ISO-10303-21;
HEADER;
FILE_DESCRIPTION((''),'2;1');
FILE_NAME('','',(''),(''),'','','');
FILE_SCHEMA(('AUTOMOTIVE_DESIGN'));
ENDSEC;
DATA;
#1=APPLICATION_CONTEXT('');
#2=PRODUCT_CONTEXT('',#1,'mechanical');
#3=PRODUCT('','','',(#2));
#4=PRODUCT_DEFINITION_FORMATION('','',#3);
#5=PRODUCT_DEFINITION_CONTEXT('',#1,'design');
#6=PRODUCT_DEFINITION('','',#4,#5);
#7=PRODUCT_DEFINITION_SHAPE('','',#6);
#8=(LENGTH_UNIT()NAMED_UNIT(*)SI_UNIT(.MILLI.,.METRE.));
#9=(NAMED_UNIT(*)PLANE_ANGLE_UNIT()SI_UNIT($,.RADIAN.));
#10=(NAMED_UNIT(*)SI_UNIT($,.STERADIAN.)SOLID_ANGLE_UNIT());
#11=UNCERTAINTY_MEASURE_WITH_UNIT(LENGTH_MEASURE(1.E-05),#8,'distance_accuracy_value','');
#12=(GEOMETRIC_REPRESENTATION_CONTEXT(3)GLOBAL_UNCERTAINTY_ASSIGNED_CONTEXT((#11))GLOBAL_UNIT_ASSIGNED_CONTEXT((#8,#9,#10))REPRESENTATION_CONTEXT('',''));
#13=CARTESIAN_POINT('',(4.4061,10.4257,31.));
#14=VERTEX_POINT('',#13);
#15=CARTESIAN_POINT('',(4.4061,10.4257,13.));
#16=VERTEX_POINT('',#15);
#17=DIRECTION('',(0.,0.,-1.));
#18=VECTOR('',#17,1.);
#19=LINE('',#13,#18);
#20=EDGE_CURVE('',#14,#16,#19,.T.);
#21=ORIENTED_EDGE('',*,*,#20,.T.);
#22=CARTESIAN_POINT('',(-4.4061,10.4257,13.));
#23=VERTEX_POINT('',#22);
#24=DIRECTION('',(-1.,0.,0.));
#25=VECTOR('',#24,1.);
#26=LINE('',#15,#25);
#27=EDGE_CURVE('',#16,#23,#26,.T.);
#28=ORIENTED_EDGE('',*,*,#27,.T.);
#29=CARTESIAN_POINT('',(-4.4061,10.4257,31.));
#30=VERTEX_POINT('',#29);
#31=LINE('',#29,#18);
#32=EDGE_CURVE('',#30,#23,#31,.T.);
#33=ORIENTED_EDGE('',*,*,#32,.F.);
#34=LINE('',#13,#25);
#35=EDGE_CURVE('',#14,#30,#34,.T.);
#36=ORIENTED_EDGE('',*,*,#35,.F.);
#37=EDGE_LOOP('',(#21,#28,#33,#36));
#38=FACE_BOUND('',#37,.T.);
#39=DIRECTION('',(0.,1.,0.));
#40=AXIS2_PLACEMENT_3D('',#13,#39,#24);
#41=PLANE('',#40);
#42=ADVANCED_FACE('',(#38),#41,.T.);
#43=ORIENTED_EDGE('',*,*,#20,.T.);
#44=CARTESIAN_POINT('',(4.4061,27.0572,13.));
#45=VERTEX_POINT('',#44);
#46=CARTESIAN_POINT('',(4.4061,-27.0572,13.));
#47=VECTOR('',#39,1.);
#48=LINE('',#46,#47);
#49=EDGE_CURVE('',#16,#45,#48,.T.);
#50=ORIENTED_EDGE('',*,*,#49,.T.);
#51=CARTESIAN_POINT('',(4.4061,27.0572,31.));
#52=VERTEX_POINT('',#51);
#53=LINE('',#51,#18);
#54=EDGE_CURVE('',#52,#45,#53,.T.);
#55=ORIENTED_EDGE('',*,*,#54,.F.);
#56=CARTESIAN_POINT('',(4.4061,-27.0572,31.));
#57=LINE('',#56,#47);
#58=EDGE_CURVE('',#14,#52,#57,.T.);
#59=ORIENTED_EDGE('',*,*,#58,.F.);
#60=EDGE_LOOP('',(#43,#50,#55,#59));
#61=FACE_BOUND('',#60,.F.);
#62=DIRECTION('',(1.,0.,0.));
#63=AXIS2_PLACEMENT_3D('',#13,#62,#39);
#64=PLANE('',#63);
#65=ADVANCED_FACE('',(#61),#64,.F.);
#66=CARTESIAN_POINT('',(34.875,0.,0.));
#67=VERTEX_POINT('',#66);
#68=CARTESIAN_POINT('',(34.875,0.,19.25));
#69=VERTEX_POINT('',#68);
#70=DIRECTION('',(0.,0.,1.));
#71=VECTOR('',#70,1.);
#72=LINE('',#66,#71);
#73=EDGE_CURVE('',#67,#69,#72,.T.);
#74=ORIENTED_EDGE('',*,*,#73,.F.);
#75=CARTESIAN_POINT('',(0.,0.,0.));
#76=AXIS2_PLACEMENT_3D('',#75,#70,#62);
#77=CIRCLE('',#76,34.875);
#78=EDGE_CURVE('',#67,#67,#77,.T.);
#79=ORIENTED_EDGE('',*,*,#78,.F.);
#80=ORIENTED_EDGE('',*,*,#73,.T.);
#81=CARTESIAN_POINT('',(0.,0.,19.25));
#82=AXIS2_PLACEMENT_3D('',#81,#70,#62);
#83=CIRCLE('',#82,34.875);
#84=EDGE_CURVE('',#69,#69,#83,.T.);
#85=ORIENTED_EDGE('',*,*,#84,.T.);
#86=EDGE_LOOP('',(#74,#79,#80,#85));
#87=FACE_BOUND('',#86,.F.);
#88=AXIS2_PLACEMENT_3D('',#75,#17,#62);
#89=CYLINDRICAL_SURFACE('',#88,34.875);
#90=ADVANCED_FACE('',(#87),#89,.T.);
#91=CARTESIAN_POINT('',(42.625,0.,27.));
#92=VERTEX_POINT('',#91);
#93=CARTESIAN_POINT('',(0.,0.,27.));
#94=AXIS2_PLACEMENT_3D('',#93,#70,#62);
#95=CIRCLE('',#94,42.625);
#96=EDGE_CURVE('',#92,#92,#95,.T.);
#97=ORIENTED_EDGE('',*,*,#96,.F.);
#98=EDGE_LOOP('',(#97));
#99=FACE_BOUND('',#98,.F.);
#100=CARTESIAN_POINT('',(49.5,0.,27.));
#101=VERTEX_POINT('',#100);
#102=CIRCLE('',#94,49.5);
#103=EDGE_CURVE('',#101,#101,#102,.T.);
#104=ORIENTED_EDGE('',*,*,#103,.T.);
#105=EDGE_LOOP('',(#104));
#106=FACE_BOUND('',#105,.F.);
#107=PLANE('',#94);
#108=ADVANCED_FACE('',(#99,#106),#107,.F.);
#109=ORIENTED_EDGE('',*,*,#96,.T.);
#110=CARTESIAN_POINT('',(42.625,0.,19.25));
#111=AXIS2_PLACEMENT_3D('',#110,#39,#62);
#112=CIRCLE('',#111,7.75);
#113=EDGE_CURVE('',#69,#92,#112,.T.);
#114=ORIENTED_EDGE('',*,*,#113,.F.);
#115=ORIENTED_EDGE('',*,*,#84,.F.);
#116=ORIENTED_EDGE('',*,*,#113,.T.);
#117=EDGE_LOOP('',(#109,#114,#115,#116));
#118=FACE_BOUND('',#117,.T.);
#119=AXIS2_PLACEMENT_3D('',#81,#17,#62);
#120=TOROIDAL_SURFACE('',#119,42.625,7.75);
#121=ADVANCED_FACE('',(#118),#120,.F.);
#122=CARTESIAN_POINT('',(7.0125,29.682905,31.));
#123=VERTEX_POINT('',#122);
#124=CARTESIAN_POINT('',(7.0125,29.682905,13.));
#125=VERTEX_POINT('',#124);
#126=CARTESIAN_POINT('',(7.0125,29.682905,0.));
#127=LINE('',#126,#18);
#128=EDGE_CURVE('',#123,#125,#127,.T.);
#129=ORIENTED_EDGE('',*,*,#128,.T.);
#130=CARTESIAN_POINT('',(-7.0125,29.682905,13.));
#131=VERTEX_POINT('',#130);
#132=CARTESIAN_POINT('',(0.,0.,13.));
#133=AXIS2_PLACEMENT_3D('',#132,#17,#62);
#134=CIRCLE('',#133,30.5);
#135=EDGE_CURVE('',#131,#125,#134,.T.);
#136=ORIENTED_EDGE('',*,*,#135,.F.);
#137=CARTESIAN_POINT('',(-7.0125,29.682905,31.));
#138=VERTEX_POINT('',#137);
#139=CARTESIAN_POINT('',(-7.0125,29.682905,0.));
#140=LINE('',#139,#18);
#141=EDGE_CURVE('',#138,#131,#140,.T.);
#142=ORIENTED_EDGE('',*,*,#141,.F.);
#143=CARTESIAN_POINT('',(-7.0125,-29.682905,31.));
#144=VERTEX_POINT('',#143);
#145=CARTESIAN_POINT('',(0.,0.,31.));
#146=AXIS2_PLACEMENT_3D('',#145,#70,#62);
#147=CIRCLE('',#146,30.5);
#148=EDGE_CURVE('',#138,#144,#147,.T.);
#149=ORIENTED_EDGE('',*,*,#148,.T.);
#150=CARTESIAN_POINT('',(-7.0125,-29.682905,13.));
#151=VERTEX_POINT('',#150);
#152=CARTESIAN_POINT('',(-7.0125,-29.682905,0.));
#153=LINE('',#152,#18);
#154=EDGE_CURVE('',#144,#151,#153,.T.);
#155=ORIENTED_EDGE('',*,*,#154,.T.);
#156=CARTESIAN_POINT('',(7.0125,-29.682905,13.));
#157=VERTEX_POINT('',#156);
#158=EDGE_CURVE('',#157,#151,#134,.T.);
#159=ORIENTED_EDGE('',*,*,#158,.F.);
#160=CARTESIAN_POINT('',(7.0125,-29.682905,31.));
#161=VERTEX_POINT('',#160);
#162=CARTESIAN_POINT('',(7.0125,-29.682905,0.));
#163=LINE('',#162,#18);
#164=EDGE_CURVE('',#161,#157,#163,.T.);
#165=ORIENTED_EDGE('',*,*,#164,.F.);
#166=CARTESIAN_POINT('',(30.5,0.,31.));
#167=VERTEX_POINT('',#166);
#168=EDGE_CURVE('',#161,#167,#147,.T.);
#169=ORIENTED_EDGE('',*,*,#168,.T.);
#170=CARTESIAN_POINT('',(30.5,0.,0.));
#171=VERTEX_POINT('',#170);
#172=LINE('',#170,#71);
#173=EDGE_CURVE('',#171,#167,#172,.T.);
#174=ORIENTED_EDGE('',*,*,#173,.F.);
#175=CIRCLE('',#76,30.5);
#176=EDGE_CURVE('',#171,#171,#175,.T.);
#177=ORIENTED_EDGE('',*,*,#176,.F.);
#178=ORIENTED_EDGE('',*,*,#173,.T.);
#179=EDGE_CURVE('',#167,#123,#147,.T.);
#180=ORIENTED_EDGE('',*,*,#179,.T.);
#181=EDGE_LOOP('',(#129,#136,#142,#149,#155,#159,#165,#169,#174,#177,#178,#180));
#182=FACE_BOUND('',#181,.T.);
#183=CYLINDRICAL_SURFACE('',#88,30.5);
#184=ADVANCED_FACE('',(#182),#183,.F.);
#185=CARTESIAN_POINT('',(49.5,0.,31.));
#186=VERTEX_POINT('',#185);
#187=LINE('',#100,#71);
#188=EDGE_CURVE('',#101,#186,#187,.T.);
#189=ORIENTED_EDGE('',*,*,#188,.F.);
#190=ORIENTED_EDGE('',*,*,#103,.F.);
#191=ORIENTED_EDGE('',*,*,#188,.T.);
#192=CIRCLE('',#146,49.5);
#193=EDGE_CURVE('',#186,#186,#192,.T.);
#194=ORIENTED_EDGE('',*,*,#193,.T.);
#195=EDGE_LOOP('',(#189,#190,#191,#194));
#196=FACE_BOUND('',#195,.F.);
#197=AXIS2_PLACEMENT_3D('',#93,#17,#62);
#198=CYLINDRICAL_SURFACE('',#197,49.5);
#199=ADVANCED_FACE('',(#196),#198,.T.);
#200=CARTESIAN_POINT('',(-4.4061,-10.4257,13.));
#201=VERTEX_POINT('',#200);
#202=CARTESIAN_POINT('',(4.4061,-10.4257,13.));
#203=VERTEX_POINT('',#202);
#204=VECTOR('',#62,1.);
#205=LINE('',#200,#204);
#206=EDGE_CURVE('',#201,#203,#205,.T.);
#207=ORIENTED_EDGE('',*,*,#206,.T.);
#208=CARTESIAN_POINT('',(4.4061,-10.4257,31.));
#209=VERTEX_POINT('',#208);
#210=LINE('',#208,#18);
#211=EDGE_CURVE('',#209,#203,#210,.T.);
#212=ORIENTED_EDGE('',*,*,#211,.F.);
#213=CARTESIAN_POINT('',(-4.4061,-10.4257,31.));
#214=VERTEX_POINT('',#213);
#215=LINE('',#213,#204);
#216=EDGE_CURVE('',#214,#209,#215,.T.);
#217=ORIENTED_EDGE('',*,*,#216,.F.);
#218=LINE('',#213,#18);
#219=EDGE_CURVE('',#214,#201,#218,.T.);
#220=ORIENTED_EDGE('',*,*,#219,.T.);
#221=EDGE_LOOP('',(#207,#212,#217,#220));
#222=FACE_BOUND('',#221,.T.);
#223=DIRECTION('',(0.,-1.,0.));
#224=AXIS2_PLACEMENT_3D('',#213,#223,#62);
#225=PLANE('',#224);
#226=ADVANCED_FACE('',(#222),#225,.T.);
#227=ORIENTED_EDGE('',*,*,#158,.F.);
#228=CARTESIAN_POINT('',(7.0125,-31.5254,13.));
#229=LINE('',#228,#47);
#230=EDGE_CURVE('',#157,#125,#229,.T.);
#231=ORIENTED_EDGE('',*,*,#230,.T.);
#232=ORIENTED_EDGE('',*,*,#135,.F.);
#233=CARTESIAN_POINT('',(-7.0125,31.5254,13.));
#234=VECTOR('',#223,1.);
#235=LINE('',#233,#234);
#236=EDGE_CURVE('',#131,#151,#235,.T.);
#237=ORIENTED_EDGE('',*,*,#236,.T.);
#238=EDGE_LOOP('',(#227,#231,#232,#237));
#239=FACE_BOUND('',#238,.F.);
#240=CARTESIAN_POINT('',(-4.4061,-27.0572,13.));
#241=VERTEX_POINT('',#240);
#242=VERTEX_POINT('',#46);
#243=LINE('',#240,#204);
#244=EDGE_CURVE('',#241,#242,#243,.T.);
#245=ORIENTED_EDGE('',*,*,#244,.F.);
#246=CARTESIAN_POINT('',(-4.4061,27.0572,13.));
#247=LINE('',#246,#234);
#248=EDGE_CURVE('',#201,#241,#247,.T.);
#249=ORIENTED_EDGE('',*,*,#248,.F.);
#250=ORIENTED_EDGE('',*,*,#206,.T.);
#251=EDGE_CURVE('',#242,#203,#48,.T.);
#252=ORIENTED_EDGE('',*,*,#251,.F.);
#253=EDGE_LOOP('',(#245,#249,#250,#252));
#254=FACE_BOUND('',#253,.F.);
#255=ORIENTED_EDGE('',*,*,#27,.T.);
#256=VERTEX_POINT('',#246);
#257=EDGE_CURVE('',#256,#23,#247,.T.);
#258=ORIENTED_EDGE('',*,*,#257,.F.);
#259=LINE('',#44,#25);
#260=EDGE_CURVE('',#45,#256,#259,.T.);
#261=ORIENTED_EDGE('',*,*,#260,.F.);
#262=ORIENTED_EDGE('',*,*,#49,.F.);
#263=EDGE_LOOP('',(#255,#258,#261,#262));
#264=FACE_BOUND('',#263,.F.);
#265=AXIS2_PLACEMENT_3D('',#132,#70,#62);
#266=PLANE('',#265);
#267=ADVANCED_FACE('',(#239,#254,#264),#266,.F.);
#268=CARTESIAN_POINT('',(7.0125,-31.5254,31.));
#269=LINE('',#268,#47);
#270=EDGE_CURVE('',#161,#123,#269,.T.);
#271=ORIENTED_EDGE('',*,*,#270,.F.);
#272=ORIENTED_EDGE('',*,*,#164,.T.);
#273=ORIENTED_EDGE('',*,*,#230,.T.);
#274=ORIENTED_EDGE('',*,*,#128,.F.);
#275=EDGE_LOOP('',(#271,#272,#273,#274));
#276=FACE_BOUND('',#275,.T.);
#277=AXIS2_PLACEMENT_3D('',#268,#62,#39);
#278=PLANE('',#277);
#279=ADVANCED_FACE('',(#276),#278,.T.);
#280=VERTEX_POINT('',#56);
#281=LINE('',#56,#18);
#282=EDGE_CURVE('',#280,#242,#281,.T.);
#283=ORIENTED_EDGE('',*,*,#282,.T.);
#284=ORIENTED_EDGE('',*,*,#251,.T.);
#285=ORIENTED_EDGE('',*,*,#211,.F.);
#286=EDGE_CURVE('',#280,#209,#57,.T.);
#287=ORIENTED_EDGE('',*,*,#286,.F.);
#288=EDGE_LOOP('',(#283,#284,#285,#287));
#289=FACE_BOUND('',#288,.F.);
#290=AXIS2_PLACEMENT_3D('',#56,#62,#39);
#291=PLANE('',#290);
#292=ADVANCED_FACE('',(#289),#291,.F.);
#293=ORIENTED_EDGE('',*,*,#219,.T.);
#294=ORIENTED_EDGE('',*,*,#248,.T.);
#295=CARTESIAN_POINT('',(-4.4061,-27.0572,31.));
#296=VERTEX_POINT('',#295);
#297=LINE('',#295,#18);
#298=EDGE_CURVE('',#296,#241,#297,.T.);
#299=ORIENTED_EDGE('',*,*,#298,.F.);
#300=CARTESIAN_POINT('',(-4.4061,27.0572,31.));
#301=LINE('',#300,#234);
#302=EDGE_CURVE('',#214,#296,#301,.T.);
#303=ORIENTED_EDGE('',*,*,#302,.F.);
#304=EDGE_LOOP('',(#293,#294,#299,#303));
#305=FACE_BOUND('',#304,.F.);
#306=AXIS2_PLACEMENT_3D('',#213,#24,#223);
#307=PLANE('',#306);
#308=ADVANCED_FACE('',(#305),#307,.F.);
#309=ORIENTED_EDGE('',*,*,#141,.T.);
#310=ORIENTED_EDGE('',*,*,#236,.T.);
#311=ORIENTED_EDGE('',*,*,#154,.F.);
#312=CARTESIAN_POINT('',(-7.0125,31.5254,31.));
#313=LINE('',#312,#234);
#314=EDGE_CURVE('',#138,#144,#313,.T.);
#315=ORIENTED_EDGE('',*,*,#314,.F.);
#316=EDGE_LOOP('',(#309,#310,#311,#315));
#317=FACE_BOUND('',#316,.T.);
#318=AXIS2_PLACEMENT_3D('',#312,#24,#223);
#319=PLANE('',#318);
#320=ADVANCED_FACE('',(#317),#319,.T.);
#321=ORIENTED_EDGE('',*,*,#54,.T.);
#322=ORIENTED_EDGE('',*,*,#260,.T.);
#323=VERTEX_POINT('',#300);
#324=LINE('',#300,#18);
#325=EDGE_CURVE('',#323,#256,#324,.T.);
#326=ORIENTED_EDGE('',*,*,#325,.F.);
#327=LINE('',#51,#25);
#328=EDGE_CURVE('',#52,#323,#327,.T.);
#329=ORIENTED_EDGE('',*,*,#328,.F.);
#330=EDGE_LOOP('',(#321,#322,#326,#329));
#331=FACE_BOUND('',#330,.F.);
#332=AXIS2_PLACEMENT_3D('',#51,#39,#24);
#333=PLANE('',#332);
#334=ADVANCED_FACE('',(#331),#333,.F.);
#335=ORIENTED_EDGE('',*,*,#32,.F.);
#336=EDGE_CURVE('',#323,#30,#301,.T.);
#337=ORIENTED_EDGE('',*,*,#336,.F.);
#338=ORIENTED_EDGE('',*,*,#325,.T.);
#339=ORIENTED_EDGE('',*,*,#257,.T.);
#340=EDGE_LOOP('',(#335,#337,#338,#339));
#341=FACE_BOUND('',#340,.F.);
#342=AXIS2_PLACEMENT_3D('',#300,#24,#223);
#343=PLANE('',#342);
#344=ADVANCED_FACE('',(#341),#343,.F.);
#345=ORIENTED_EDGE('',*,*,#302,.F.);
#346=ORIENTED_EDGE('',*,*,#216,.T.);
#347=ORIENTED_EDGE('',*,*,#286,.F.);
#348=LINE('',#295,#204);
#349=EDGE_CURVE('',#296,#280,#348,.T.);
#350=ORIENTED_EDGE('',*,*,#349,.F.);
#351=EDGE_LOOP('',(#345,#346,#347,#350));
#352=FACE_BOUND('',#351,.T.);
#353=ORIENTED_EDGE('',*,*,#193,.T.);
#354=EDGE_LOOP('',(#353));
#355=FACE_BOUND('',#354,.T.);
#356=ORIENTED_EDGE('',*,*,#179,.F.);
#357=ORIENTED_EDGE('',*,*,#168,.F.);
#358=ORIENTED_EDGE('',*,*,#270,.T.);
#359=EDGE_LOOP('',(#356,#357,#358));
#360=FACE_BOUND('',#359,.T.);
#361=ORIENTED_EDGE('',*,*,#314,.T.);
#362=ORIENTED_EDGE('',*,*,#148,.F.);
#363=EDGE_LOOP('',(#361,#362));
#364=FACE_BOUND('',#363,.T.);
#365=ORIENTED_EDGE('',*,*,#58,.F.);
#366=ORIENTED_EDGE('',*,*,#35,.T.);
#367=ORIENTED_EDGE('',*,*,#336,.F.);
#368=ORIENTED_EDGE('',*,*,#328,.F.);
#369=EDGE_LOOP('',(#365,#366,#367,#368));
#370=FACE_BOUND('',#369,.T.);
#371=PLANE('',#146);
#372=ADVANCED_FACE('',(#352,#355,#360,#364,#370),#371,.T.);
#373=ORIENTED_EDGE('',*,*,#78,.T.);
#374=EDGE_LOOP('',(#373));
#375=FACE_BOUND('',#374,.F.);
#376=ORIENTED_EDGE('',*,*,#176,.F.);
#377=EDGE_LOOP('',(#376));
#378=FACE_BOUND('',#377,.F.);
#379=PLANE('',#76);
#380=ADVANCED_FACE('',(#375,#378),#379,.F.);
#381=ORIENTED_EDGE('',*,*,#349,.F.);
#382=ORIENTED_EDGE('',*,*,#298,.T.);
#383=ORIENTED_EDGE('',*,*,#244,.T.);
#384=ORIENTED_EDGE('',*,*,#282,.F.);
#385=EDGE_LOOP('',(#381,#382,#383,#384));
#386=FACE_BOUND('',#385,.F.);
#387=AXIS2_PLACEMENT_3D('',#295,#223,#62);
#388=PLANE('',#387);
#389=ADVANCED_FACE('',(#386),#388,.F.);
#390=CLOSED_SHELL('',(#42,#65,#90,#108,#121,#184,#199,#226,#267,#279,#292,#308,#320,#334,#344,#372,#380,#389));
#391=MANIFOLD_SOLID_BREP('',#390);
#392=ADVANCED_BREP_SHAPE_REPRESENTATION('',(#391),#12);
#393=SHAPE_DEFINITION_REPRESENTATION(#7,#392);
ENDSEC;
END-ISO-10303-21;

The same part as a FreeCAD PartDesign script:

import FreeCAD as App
import Part
import Sketcher


def edges_at(feature, points):
    """Names of the edges that pass closest to the given points."""
    edges = feature.Shape.Edges
    near = lambda p: min(range(len(edges)), key=lambda i: edges[i].distToShape(Part.Vertex(*p))[0])
    return sorted({f"Edge{near(p) + 1}" for p in points})

doc = App.newDocument("Part")
body = doc.addObject("PartDesign::Body", "Body")

# Sketch on XY plane
sketch1 = body.newObject("Sketcher::SketchObject", "Sketch")
sketch1.AttachmentSupport = (doc.getObject("XY_Plane"), [""])
sketch1.MapMode = "FlatFace"
sketch1.addGeometry(Part.Circle(App.Vector(0, 0, 0), App.Vector(0, 0, 1), 35), False)
sketch1.addGeometry(Part.Circle(App.Vector(0, 0, 0), App.Vector(0, 0, 1), 30), False)
sketch1.addConstraint(Sketcher.Constraint("Coincident", 0, 3, -1, 1))
sketch1.addConstraint(Sketcher.Constraint("Coincident", 1, 3, -1, 1))
sketch1.addConstraint(Sketcher.Constraint("Diameter", 1, 61.0))
sketch1.addConstraint(Sketcher.Constraint("Diameter", 0, 69.75))
pad1 = body.newObject("PartDesign::Pad", "Pad")
pad1.Profile = sketch1
pad1.Length = 27

# Sketch on XY plane
sketch2 = body.newObject("Sketcher::SketchObject", "Sketch001")
sketch2.AttachmentSupport = (doc.getObject("XY_Plane"), [""])
sketch2.MapMode = "FlatFace"
sketch2.AttachmentOffset = App.Placement(App.Vector(0, 0, 27), App.Rotation())
sketch2.addGeometry(Part.Circle(App.Vector(0, 0, 0), App.Vector(0, 0, 1), 50), False)
sketch2.addGeometry(Part.Circle(App.Vector(0, 0, 0), App.Vector(0, 0, 1), 30), False)
sketch2.addConstraint(Sketcher.Constraint("Coincident", 0, 3, -1, 1))
sketch2.addConstraint(Sketcher.Constraint("Coincident", 1, 3, -1, 1))
sketch2.addConstraint(Sketcher.Constraint("Diameter", 0, 99.0))
sketch2.addConstraint(Sketcher.Constraint("Diameter", 1, 61.0))
pad2 = body.newObject("PartDesign::Pad", "Pad001")
pad2.Profile = sketch2
pad2.Length = 4
doc.recompute()

fillet = body.newObject("PartDesign::Fillet", "Fillet")
fillet.Base = (pad2, edges_at(pad2, [(-34.875, 0, 27)]))
fillet.Radius = 7.75

# Sketch on XY plane
sketch3 = body.newObject("Sketcher::SketchObject", "Sketch002")
sketch3.AttachmentSupport = (doc.getObject("XY_Plane"), [""])
sketch3.MapMode = "FlatFace"
sketch3.AttachmentOffset = App.Placement(App.Vector(0, 0, 31), App.Rotation())
sketch3.addGeometry(Part.LineSegment(App.Vector(-7, 32, 0), App.Vector(-7, -32, 0)), False)
sketch3.addGeometry(Part.LineSegment(App.Vector(-7, -32, 0), App.Vector(7, -32, 0)), False)
sketch3.addGeometry(Part.LineSegment(App.Vector(7, -32, 0), App.Vector(7, 32, 0)), False)
sketch3.addGeometry(Part.LineSegment(App.Vector(7, 32, 0), App.Vector(-7, 32, 0)), False)
sketch3.addGeometry(Part.LineSegment(App.Vector(4, -27, 0), App.Vector(-4, -27, 0)), False)
sketch3.addGeometry(Part.LineSegment(App.Vector(-4, -27, 0), App.Vector(-4, -10, 0)), False)
sketch3.addGeometry(Part.LineSegment(App.Vector(-4, -10, 0), App.Vector(4, -10, 0)), False)
sketch3.addGeometry(Part.LineSegment(App.Vector(4, -10, 0), App.Vector(4, -27, 0)), False)
sketch3.addGeometry(Part.LineSegment(App.Vector(4, 27, 0), App.Vector(4, 10, 0)), False)
sketch3.addGeometry(Part.LineSegment(App.Vector(4, 10, 0), App.Vector(-4, 10, 0)), False)
sketch3.addGeometry(Part.LineSegment(App.Vector(-4, 10, 0), App.Vector(-4, 27, 0)), False)
sketch3.addGeometry(Part.LineSegment(App.Vector(-4, 27, 0), App.Vector(4, 27, 0)), False)
sketch3.addConstraint(Sketcher.Constraint("Coincident", 0, 2, 1, 1))
sketch3.addConstraint(Sketcher.Constraint("Coincident", 1, 2, 2, 1))
sketch3.addConstraint(Sketcher.Constraint("Coincident", 2, 2, 3, 1))
sketch3.addConstraint(Sketcher.Constraint("Coincident", 3, 2, 0, 1))
sketch3.addConstraint(Sketcher.Constraint("Coincident", 4, 2, 5, 1))
sketch3.addConstraint(Sketcher.Constraint("Coincident", 5, 2, 6, 1))
sketch3.addConstraint(Sketcher.Constraint("Coincident", 6, 2, 7, 1))
sketch3.addConstraint(Sketcher.Constraint("Coincident", 7, 2, 4, 1))
sketch3.addConstraint(Sketcher.Constraint("Coincident", 8, 2, 9, 1))
sketch3.addConstraint(Sketcher.Constraint("Coincident", 9, 2, 10, 1))
sketch3.addConstraint(Sketcher.Constraint("Coincident", 10, 2, 11, 1))
sketch3.addConstraint(Sketcher.Constraint("Coincident", 11, 2, 8, 1))
sketch3.addConstraint(Sketcher.Constraint("Vertical", 0))
sketch3.addConstraint(Sketcher.Constraint("Horizontal", 1))
sketch3.addConstraint(Sketcher.Constraint("Vertical", 2))
sketch3.addConstraint(Sketcher.Constraint("Horizontal", 3))
sketch3.addConstraint(Sketcher.Constraint("Horizontal", 4))
sketch3.addConstraint(Sketcher.Constraint("Vertical", 5))
sketch3.addConstraint(Sketcher.Constraint("Horizontal", 6))
sketch3.addConstraint(Sketcher.Constraint("Vertical", 7))
sketch3.addConstraint(Sketcher.Constraint("Vertical", 8))
sketch3.addConstraint(Sketcher.Constraint("Horizontal", 9))
sketch3.addConstraint(Sketcher.Constraint("Vertical", 10))
sketch3.addConstraint(Sketcher.Constraint("Horizontal", 11))
sketch3.addConstraint(Sketcher.Constraint("Symmetric", 0, 2, 2, 2, -1, 1))
sketch3.addConstraint(Sketcher.Constraint("Symmetric", 5, 2, 8, 2, -1, 1))
sketch3.addConstraint(Sketcher.Constraint("Symmetric", 7, 2, 10, 2, -1, 1))
sketch3.addConstraint(Sketcher.Constraint("Vertical", 7, 2, 8, 2))
sketch3.addConstraint(Sketcher.Constraint("DistanceX", 1, 1, 1, 2, 14.025))
sketch3.addConstraint(Sketcher.Constraint("DistanceX", 4, 2, 4, 1, 8.8122))
sketch3.addConstraint(Sketcher.Constraint("DistanceY", 0, 2, 0, 1, 63.0508))
sketch3.addConstraint(Sketcher.Constraint("DistanceY", 5, 1, 5, 2, 16.6315))
sketch3.addConstraint(Sketcher.Constraint("DistanceY", 5, 2, 3, 2, 41.951))
pad3 = body.newObject("PartDesign::Pad", "Pad002")
pad3.Profile = sketch3
pad3.Length = 18
pad3.Reversed = True

doc.recompute()
